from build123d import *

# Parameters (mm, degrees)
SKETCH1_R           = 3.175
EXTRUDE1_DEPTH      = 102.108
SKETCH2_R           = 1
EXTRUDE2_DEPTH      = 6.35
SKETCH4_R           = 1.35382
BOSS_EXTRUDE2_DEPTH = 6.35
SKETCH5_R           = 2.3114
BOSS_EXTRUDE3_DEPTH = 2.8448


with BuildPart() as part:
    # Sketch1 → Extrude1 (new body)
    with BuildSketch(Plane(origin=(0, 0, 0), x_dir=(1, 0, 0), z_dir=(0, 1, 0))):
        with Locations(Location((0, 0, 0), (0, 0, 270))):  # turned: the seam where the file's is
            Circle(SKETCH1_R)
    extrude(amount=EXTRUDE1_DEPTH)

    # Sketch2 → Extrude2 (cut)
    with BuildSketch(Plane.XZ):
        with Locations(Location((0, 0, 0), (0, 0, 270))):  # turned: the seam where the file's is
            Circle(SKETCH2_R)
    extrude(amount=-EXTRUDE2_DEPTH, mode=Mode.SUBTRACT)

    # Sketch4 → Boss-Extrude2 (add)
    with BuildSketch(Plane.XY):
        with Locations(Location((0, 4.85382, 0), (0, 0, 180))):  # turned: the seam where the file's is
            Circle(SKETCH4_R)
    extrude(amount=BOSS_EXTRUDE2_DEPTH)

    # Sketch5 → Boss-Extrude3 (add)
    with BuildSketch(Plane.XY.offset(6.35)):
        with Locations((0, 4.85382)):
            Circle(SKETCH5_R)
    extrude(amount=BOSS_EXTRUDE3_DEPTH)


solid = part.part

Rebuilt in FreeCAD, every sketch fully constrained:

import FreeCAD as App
import Part
import Sketcher

V = App.Vector
Q = App.Units.Quantity

doc = App.newDocument("Part")
body = doc.addObject("PartDesign::Body", "Body")

# Sketch on XZ plane
sketch1 = body.newObject("Sketcher::SketchObject", "Sketch")
sketch1.AttachmentSupport = (doc.getObject("XZ_Plane"), [""])
sketch1.MapMode = "FlatFace"
sketch1.addGeometry(Part.Circle(V(0, 0, 0), V(0, 0, 1), 3.2), False)
sketch1.addConstraint([
    Sketcher.Constraint("Coincident", 0, 3, -1, 1),
    Sketcher.Constraint("Diameter", 0, Q("0.25 in")),
])
pad1 = body.newObject("PartDesign::Pad", "Pad")
pad1.Profile = sketch1
pad1.Length = Q("4.02 in")
pad1.Reversed = True

# Sketch on XZ plane
sketch2 = body.newObject("Sketcher::SketchObject", "Sketch001")
sketch2.AttachmentSupport = (doc.getObject("XZ_Plane"), [""])
sketch2.MapMode = "FlatFace"
sketch2.addGeometry(Part.Circle(V(0, 0, 0), V(0, 0, 1), 1), False)
sketch2.addConstraint([
    Sketcher.Constraint("Coincident", 0, 3, -1, 1),
    Sketcher.Constraint("Diameter", 0, 2.0),
])
pocket1 = body.newObject("PartDesign::Pocket", "Pocket")
pocket1.Profile = sketch2
pocket1.Length = Q("0.25 in")

# Sketch on XY plane
sketch3 = body.newObject("Sketcher::SketchObject", "Sketch002")
sketch3.AttachmentSupport = (doc.getObject("XY_Plane"), [""])
sketch3.MapMode = "FlatFace"
sketch3.addGeometry(Part.Circle(V(0, 4.9, 0), V(0, 0, 1), 1.4), False)
sketch3.addConstraint([
    Sketcher.Constraint("PointOnObject", 0, 3, -2),
    Sketcher.Constraint("Diameter", 0, Q("0.1066 in")),
    Sketcher.Constraint("DistanceY", -1, 1, 0, 3, 4.85382),
])
pad2 = body.newObject("PartDesign::Pad", "Pad001")
pad2.Profile = sketch3
pad2.Length = Q("0.25 in")

# Sketch on XY plane
sketch4 = body.newObject("Sketcher::SketchObject", "Sketch003")
sketch4.AttachmentSupport = (doc.getObject("XY_Plane"), [""])
sketch4.MapMode = "FlatFace"
sketch4.AttachmentOffset = App.Placement(V(0, 0, 0.25 * 25.4), App.Rotation())
sketch4.addGeometry(Part.Circle(V(0, 4.9, 0), V(0, 0, 1), 2.3), False)
sketch4.addConstraint([
    Sketcher.Constraint("PointOnObject", 0, 3, -2),
    Sketcher.Constraint("Diameter", 0, Q("0.182 in")),
    Sketcher.Constraint("DistanceY", -1, 1, 0, 3, 4.85382),
])
pad3 = body.newObject("PartDesign::Pad", "Pad002")
pad3.Profile = sketch4
pad3.Length = Q("0.112 in")

doc.recompute()
